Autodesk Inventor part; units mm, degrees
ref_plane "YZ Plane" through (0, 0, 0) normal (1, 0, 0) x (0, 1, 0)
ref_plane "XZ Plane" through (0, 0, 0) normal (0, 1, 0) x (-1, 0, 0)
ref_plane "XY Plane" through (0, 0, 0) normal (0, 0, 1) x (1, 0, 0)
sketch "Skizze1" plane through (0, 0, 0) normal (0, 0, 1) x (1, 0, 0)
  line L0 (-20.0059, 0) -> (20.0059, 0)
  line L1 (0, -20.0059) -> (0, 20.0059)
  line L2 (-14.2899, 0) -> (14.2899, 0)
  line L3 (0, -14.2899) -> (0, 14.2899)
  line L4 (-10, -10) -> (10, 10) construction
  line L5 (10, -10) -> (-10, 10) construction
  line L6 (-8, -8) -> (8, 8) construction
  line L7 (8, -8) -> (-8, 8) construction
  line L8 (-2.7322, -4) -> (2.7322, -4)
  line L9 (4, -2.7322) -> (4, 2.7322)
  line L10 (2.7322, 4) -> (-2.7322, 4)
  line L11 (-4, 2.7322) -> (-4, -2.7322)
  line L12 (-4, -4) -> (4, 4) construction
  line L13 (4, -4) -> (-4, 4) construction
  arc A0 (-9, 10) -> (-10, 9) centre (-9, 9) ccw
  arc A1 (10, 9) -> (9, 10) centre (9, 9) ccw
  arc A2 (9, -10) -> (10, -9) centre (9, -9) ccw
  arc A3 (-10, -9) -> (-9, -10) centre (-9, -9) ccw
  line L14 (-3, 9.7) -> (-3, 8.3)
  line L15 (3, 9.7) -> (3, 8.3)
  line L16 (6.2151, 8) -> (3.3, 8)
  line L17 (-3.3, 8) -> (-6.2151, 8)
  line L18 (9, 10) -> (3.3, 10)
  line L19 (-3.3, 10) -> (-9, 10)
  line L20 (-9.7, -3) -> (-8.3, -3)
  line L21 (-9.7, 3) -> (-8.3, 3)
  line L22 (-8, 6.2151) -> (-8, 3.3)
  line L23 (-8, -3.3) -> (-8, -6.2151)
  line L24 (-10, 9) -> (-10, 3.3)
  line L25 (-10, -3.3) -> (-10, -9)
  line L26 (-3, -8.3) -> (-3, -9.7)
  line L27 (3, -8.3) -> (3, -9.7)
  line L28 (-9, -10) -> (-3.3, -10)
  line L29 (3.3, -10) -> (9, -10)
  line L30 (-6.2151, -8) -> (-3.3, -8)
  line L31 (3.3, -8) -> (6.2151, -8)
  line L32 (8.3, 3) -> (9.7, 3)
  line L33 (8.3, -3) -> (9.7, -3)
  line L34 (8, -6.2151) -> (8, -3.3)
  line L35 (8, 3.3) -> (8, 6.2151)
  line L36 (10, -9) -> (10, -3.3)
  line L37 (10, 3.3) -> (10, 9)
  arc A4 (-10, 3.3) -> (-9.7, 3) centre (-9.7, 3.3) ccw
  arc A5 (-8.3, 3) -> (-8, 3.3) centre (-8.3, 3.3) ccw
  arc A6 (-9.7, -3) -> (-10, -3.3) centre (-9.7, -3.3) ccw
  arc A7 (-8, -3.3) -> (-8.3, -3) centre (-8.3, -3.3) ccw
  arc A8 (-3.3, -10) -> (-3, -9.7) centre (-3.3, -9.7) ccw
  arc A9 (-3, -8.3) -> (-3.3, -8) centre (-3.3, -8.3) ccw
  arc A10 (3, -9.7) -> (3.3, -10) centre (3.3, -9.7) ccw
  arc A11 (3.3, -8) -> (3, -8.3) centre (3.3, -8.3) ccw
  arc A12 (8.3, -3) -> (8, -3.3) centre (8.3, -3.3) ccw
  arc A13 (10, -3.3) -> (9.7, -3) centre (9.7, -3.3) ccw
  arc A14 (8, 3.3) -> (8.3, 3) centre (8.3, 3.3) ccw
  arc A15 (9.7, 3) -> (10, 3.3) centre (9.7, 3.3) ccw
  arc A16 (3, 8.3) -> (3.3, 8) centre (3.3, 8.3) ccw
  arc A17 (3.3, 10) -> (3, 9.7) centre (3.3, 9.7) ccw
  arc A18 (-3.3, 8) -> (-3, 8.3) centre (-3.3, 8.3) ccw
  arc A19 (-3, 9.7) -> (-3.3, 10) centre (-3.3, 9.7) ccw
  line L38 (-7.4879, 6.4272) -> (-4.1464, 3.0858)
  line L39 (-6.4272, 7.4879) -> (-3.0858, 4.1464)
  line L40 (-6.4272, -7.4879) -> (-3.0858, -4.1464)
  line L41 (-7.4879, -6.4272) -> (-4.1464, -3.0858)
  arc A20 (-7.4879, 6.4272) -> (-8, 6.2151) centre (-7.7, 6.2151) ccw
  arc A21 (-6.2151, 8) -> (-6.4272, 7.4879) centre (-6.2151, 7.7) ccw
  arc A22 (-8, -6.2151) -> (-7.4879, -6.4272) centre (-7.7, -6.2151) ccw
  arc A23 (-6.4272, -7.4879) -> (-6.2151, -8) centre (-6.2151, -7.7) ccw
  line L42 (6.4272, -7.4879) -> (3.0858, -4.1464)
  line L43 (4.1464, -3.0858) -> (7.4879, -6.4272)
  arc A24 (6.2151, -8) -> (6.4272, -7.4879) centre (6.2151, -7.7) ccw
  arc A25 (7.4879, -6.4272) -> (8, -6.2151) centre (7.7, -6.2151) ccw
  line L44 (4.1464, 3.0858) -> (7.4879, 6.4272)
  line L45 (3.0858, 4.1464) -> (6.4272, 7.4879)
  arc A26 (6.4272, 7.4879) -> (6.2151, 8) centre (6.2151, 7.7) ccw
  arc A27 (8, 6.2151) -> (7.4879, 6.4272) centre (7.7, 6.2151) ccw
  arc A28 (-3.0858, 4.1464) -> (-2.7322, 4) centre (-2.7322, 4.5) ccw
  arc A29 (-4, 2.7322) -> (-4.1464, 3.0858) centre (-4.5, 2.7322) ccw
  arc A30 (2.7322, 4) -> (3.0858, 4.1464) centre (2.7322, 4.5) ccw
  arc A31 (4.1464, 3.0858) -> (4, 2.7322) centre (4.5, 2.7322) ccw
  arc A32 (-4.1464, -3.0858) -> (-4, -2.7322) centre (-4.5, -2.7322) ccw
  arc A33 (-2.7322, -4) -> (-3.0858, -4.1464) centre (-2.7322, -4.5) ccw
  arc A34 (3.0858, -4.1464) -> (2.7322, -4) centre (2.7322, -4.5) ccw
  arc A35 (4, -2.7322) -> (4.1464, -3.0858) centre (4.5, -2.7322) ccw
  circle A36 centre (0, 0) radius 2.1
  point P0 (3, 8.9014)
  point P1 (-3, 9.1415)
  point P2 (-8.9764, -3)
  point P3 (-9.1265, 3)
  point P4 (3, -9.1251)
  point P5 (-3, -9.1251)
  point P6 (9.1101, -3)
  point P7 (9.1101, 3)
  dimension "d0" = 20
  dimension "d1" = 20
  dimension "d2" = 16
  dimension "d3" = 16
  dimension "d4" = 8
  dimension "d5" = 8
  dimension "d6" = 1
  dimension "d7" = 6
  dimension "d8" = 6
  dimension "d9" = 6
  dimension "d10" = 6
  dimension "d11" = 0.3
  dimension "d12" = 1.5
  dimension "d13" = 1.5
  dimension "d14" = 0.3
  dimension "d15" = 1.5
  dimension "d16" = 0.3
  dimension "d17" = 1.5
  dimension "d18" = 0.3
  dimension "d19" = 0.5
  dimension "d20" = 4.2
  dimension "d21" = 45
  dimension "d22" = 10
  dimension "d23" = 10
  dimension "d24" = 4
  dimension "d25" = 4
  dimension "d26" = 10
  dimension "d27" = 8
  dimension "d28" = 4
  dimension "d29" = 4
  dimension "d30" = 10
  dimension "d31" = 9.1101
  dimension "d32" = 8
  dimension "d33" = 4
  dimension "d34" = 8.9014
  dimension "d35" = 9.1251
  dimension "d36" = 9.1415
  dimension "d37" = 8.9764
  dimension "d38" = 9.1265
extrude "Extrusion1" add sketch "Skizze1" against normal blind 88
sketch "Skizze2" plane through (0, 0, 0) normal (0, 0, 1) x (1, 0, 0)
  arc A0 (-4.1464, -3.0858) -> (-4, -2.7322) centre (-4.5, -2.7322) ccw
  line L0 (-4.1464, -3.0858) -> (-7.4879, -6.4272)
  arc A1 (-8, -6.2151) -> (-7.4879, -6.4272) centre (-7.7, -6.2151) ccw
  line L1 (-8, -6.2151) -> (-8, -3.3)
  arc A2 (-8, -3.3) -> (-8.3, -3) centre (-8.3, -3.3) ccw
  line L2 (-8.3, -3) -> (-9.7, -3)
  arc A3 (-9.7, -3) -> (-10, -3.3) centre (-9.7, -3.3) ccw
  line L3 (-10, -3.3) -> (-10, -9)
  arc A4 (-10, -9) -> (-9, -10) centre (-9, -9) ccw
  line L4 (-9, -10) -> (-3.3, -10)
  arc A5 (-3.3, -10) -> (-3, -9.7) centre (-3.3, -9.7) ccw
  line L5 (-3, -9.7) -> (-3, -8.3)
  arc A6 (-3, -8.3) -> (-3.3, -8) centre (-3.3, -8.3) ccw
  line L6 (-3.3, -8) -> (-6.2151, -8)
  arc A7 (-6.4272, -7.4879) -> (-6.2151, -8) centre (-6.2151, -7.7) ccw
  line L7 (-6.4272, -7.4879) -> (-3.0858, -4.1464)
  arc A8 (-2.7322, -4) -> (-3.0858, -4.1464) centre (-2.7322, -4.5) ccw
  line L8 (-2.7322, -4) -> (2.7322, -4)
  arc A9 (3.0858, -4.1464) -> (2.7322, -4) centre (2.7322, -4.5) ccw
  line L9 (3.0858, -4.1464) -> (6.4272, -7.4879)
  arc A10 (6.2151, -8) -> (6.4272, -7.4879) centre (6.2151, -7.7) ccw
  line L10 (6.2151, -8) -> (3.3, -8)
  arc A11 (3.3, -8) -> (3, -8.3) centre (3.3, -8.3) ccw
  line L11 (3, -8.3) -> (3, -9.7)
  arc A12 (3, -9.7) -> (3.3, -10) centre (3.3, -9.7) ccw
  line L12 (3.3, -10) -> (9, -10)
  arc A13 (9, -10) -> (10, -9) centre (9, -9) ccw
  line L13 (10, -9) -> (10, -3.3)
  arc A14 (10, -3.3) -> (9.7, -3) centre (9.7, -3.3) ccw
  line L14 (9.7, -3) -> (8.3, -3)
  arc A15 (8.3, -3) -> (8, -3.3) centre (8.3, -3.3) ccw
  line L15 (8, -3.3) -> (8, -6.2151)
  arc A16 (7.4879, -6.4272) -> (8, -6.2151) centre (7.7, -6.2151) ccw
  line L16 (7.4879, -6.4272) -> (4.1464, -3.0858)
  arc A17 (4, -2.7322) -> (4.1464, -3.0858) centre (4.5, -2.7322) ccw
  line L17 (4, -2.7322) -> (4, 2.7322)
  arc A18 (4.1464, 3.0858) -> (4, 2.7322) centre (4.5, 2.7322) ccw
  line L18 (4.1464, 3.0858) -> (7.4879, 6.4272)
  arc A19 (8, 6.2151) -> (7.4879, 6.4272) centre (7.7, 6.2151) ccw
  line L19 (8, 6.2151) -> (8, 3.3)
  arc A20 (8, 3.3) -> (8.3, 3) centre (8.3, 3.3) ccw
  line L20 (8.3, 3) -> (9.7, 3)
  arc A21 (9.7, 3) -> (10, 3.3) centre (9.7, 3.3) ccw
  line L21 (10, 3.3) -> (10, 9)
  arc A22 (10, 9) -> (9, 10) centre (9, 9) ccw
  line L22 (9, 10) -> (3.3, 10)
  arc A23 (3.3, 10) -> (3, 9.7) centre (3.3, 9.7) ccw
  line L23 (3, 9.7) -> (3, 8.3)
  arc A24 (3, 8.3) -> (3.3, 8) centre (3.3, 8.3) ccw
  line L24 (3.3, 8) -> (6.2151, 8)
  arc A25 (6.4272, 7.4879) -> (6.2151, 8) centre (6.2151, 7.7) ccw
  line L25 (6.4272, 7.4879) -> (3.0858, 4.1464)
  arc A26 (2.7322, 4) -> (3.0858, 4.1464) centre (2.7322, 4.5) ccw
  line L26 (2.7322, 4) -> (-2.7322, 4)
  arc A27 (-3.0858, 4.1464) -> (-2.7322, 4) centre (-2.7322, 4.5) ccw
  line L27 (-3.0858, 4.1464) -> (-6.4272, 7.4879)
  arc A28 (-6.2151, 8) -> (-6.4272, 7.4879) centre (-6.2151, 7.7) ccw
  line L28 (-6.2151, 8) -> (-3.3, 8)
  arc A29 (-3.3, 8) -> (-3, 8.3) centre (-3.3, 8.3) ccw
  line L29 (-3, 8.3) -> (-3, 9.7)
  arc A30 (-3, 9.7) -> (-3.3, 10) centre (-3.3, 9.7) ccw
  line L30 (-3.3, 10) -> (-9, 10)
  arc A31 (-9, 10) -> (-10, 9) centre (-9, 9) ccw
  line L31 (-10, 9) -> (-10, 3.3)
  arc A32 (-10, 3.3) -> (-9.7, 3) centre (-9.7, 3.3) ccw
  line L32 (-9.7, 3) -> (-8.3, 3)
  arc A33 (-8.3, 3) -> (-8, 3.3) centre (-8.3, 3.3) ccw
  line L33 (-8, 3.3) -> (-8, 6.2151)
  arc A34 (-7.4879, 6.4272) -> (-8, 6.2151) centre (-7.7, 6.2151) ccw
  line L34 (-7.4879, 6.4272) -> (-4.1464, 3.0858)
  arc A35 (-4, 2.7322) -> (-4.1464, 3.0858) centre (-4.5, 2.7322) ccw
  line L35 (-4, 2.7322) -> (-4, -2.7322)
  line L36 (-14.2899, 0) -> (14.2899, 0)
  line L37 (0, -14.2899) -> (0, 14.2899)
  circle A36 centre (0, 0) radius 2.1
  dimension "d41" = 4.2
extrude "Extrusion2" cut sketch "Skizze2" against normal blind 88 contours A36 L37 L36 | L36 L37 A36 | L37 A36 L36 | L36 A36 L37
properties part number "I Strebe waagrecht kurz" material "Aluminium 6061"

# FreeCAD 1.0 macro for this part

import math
import FreeCAD as App
import Part
import Sketcher

V = App.Vector
Q = App.Units.Quantity

doc = App.newDocument("Part")
body = doc.addObject("PartDesign::Body", "Body")

sketch1 = doc.addObject("Sketcher::SketchObject", "Sketch")
body.addObject(sketch1)
sketch1.AttachmentSupport = (doc.XY_Plane, [""])
sketch1.MapMode = "FlatFace"
sketch1.addGeometry([
    Part.LineSegment(V(-4, 2.73, 0), V(-4, -2.73, 0)),
    Part.ArcOfCircle(Part.Circle(V(-4.5, -2.73, 0), V(0, 0, 1), 0.5), math.radians(-45), math.radians(0)),
    Part.LineSegment(V(-4.15, -3.09, 0), V(-7.49, -6.43, 0)),
    Part.ArcOfCircle(Part.Circle(V(-7.7, -6.22, 0), V(0, 0, 1), 0.3), math.radians(180), math.radians(315)),
    Part.LineSegment(V(-8, -6.22, 0), V(-8, -3.3, 0)),
    Part.ArcOfCircle(Part.Circle(V(-8.3, -3.3, 0), V(0, 0, 1), 0.3), math.radians(0), math.radians(90)),
    Part.LineSegment(V(-8.3, -3, 0), V(-9.7, -3, 0)),
    Part.ArcOfCircle(Part.Circle(V(-9.7, -3.3, 0), V(0, 0, 1), 0.3), math.radians(90), math.radians(180)),
    Part.LineSegment(V(-10, -3.3, 0), V(-10, -9, 0)),
    Part.ArcOfCircle(Part.Circle(V(-9, -9, 0), V(0, 0, 1), 1), math.radians(180), math.radians(270)),
    Part.LineSegment(V(-9, -10, 0), V(-3.3, -10, 0)),
    Part.ArcOfCircle(Part.Circle(V(-3.3, -9.7, 0), V(0, 0, 1), 0.3), math.radians(-90), math.radians(0)),
    Part.LineSegment(V(-3, -9.7, 0), V(-3, -8.3, 0)),
    Part.ArcOfCircle(Part.Circle(V(-3.3, -8.3, 0), V(0, 0, 1), 0.3), math.radians(0), math.radians(90)),
    Part.LineSegment(V(-3.3, -8, 0), V(-6.22, -8, 0)),
    Part.ArcOfCircle(Part.Circle(V(-6.22, -7.7, 0), V(0, 0, 1), 0.3), math.radians(135), math.radians(270)),
    Part.LineSegment(V(-6.43, -7.49, 0), V(-3.09, -4.15, 0)),
    Part.ArcOfCircle(Part.Circle(V(-2.73, -4.5, 0), V(0, 0, 1), 0.5), math.radians(90), math.radians(135)),
    Part.LineSegment(V(-2.73, -4, 0), V(2.73, -4, 0)),
    Part.ArcOfCircle(Part.Circle(V(2.73, -4.5, 0), V(0, 0, 1), 0.5), math.radians(45), math.radians(90)),
    Part.LineSegment(V(3.09, -4.15, 0), V(6.43, -7.49, 0)),
    Part.ArcOfCircle(Part.Circle(V(6.22, -7.7, 0), V(0, 0, 1), 0.3), math.radians(-90), math.radians(45)),
    Part.LineSegment(V(6.22, -8, 0), V(3.3, -8, 0)),
    Part.ArcOfCircle(Part.Circle(V(3.3, -8.3, 0), V(0, 0, 1), 0.3), math.radians(90), math.radians(180)),
    Part.LineSegment(V(3, -8.3, 0), V(3, -9.7, 0)),
    Part.ArcOfCircle(Part.Circle(V(3.3, -9.7, 0), V(0, 0, 1), 0.3), math.radians(180), math.radians(270)),
    Part.LineSegment(V(3.3, -10, 0), V(9, -10, 0)),
    Part.ArcOfCircle(Part.Circle(V(9, -9, 0), V(0, 0, 1), 1), math.radians(-90), math.radians(0)),
    Part.LineSegment(V(10, -9, 0), V(10, -3.3, 0)),
    Part.ArcOfCircle(Part.Circle(V(9.7, -3.3, 0), V(0, 0, 1), 0.3), math.radians(0), math.radians(90)),
    Part.LineSegment(V(9.7, -3, 0), V(8.3, -3, 0)),
    Part.ArcOfCircle(Part.Circle(V(8.3, -3.3, 0), V(0, 0, 1), 0.3), math.radians(90), math.radians(180)),
    Part.LineSegment(V(8, -3.3, 0), V(8, -6.22, 0)),
    Part.ArcOfCircle(Part.Circle(V(7.7, -6.22, 0), V(0, 0, 1), 0.3), math.radians(-135), math.radians(0)),
    Part.LineSegment(V(7.49, -6.43, 0), V(4.15, -3.09, 0)),
    Part.ArcOfCircle(Part.Circle(V(4.5, -2.73, 0), V(0, 0, 1), 0.5), math.radians(180), math.radians(225)),
    Part.LineSegment(V(4, -2.73, 0), V(4, 2.73, 0)),
    Part.ArcOfCircle(Part.Circle(V(4.5, 2.73, 0), V(0, 0, 1), 0.5), math.radians(135), math.radians(180)),
    Part.LineSegment(V(4.15, 3.09, 0), V(7.49, 6.43, 0)),
    Part.ArcOfCircle(Part.Circle(V(7.7, 6.22, 0), V(0, 0, 1), 0.3), math.radians(0), math.radians(135)),
    Part.LineSegment(V(8, 6.22, 0), V(8, 3.3, 0)),
    Part.ArcOfCircle(Part.Circle(V(8.3, 3.3, 0), V(0, 0, 1), 0.3), math.radians(180), math.radians(270)),
    Part.LineSegment(V(8.3, 3, 0), V(9.7, 3, 0)),
    Part.ArcOfCircle(Part.Circle(V(9.7, 3.3, 0), V(0, 0, 1), 0.3), math.radians(-90), math.radians(0)),
    Part.LineSegment(V(10, 3.3, 0), V(10, 9, 0)),
    Part.ArcOfCircle(Part.Circle(V(9, 9, 0), V(0, 0, 1), 1), math.radians(0), math.radians(90)),
    Part.LineSegment(V(9, 10, 0), V(3.3, 10, 0)),
    Part.ArcOfCircle(Part.Circle(V(3.3, 9.7, 0), V(0, 0, 1), 0.3), math.radians(90), math.radians(180)),
    Part.LineSegment(V(3, 9.7, 0), V(3, 8.3, 0)),
    Part.ArcOfCircle(Part.Circle(V(3.3, 8.3, 0), V(0, 0, 1), 0.3), math.radians(180), math.radians(270)),
    Part.LineSegment(V(3.3, 8, 0), V(6.22, 8, 0)),
    Part.ArcOfCircle(Part.Circle(V(6.22, 7.7, 0), V(0, 0, 1), 0.3), math.radians(-45), math.radians(90)),
    Part.LineSegment(V(6.43, 7.49, 0), V(3.09, 4.15, 0)),
    Part.ArcOfCircle(Part.Circle(V(2.73, 4.5, 0), V(0, 0, 1), 0.5), math.radians(-90), math.radians(-45)),
    Part.LineSegment(V(2.73, 4, 0), V(-2.73, 4, 0)),
    Part.ArcOfCircle(Part.Circle(V(-2.73, 4.5, 0), V(0, 0, 1), 0.5), math.radians(-135), math.radians(-90)),
    Part.LineSegment(V(-3.09, 4.15, 0), V(-6.43, 7.49, 0)),
    Part.ArcOfCircle(Part.Circle(V(-6.22, 7.7, 0), V(0, 0, 1), 0.3), math.radians(90), math.radians(225)),
    Part.LineSegment(V(-6.22, 8, 0), V(-3.3, 8, 0)),
    Part.ArcOfCircle(Part.Circle(V(-3.3, 8.3, 0), V(0, 0, 1), 0.3), math.radians(-90), math.radians(0)),
    Part.LineSegment(V(-3, 8.3, 0), V(-3, 9.7, 0)),
    Part.ArcOfCircle(Part.Circle(V(-3.3, 9.7, 0), V(0, 0, 1), 0.3), math.radians(0), math.radians(90)),
    Part.LineSegment(V(-3.3, 10, 0), V(-9, 10, 0)),
    Part.ArcOfCircle(Part.Circle(V(-9, 9, 0), V(0, 0, 1), 1), math.radians(90), math.radians(180)),
    Part.LineSegment(V(-10, 9, 0), V(-10, 3.3, 0)),
    Part.ArcOfCircle(Part.Circle(V(-9.7, 3.3, 0), V(0, 0, 1), 0.3), math.radians(180), math.radians(270)),
    Part.LineSegment(V(-9.7, 3, 0), V(-8.3, 3, 0)),
    Part.ArcOfCircle(Part.Circle(V(-8.3, 3.3, 0), V(0, 0, 1), 0.3), math.radians(-90), math.radians(0)),
    Part.LineSegment(V(-8, 3.3, 0), V(-8, 6.22, 0)),
    Part.ArcOfCircle(Part.Circle(V(-7.7, 6.22, 0), V(0, 0, 1), 0.3), math.radians(45), math.radians(180)),
    Part.LineSegment(V(-7.49, 6.43, 0), V(-4.15, 3.09, 0)),
    Part.ArcOfCircle(Part.Circle(V(-4.5, 2.73, 0), V(0, 0, 1), 0.5), math.radians(0), math.radians(45)),
], False)
sketch1.addConstraint([
    Sketcher.Constraint("Tangent", 0, 2, 1, 2),
    Sketcher.Constraint("Tangent", 1, 1, 2, 1),
    Sketcher.Constraint("Tangent", 2, 2, 3, 2),
    Sketcher.Constraint("Tangent", 3, 1, 4, 1),
    Sketcher.Constraint("Tangent", 4, 2, 5, 1),
    Sketcher.Constraint("Tangent", 5, 2, 6, 1),
    Sketcher.Constraint("Tangent", 6, 2, 7, 1),
    Sketcher.Constraint("Tangent", 7, 2, 8, 1),
    Sketcher.Constraint("Tangent", 8, 2, 9, 1),
    Sketcher.Constraint("Tangent", 9, 2, 10, 1),
    Sketcher.Constraint("Tangent", 10, 2, 11, 1),
    Sketcher.Constraint("Tangent", 11, 2, 12, 1),
    Sketcher.Constraint("Tangent", 12, 2, 13, 1),
    Sketcher.Constraint("Tangent", 13, 2, 14, 1),
    Sketcher.Constraint("Tangent", 14, 2, 15, 2),
    Sketcher.Constraint("Tangent", 15, 1, 16, 1),
    Sketcher.Constraint("Tangent", 16, 2, 17, 2),
    Sketcher.Constraint("Tangent", 17, 1, 18, 1),
    Sketcher.Constraint("Tangent", 18, 2, 19, 2),
    Sketcher.Constraint("Tangent", 19, 1, 20, 1),
    Sketcher.Constraint("Tangent", 20, 2, 21, 2),
    Sketcher.Constraint("Tangent", 21, 1, 22, 1),
    Sketcher.Constraint("Tangent", 22, 2, 23, 1),
    Sketcher.Constraint("Tangent", 23, 2, 24, 1),
    Sketcher.Constraint("Tangent", 24, 2, 25, 1),
    Sketcher.Constraint("Tangent", 25, 2, 26, 1),
    Sketcher.Constraint("Tangent", 26, 2, 27, 1),
    Sketcher.Constraint("Tangent", 27, 2, 28, 1),
    Sketcher.Constraint("Tangent", 28, 2, 29, 1),
    Sketcher.Constraint("Tangent", 29, 2, 30, 1),
    Sketcher.Constraint("Tangent", 30, 2, 31, 1),
    Sketcher.Constraint("Tangent", 31, 2, 32, 1),
    Sketcher.Constraint("Tangent", 32, 2, 33, 2),
    Sketcher.Constraint("Tangent", 33, 1, 34, 1),
    Sketcher.Constraint("Tangent", 34, 2, 35, 2),
    Sketcher.Constraint("Tangent", 35, 1, 36, 1),
    Sketcher.Constraint("Tangent", 36, 2, 37, 2),
    Sketcher.Constraint("Tangent", 37, 1, 38, 1),
    Sketcher.Constraint("Tangent", 38, 2, 39, 2),
    Sketcher.Constraint("Tangent", 39, 1, 40, 1),
    Sketcher.Constraint("Tangent", 40, 2, 41, 1),
    Sketcher.Constraint("Tangent", 41, 2, 42, 1),
    Sketcher.Constraint("Tangent", 42, 2, 43, 1),
    Sketcher.Constraint("Tangent", 43, 2, 44, 1),
    Sketcher.Constraint("Tangent", 44, 2, 45, 1),
    Sketcher.Constraint("Tangent", 45, 2, 46, 1),
    Sketcher.Constraint("Tangent", 46, 2, 47, 1),
    Sketcher.Constraint("Tangent", 47, 2, 48, 1),
    Sketcher.Constraint("Tangent", 48, 2, 49, 1),
    Sketcher.Constraint("Tangent", 49, 2, 50, 1),
    Sketcher.Constraint("Tangent", 50, 2, 51, 2),
    Sketcher.Constraint("Tangent", 51, 1, 52, 1),
    Sketcher.Constraint("Tangent", 52, 2, 53, 2),
    Sketcher.Constraint("Tangent", 53, 1, 54, 1),
    Sketcher.Constraint("Tangent", 54, 2, 55, 2),
    Sketcher.Constraint("Tangent", 55, 1, 56, 1),
    Sketcher.Constraint("Tangent", 56, 2, 57, 2),
    Sketcher.Constraint("Tangent", 57, 1, 58, 1),
    Sketcher.Constraint("Tangent", 58, 2, 59, 1),
    Sketcher.Constraint("Tangent", 59, 2, 60, 1),
    Sketcher.Constraint("Tangent", 60, 2, 61, 1),
    Sketcher.Constraint("Tangent", 61, 2, 62, 1),
    Sketcher.Constraint("Tangent", 62, 2, 63, 1),
    Sketcher.Constraint("Tangent", 63, 2, 64, 1),
    Sketcher.Constraint("Tangent", 64, 2, 65, 1),
    Sketcher.Constraint("Tangent", 65, 2, 66, 1),
    Sketcher.Constraint("Tangent", 66, 2, 67, 1),
    Sketcher.Constraint("Tangent", 67, 2, 68, 1),
    Sketcher.Constraint("Tangent", 68, 2, 69, 2),
    Sketcher.Constraint("Tangent", 69, 1, 70, 1),
    Sketcher.Constraint("Tangent", 70, 2, 71, 2),
    Sketcher.Constraint("Tangent", 71, 1, 0, 1),
    Sketcher.Constraint("Vertical", 0),
    Sketcher.Constraint("Vertical", 4),
    Sketcher.Constraint("Horizontal", 6),
    Sketcher.Constraint("Vertical", 8),
    Sketcher.Constraint("Horizontal", 10),
    Sketcher.Constraint("Vertical", 12),
    Sketcher.Constraint("Horizontal", 14),
    Sketcher.Constraint("Horizontal", 18),
    Sketcher.Constraint("Horizontal", 22),
    Sketcher.Constraint("Vertical", 24),
    Sketcher.Constraint("Horizontal", 26),
    Sketcher.Constraint("Vertical", 28),
    Sketcher.Constraint("Horizontal", 30),
    Sketcher.Constraint("Vertical", 32),
    Sketcher.Constraint("Vertical", 36),
    Sketcher.Constraint("Vertical", 40),
    Sketcher.Constraint("Horizontal", 42),
    Sketcher.Constraint("Vertical", 44),
    Sketcher.Constraint("Horizontal", 46),
    Sketcher.Constraint("Vertical", 48),
    Sketcher.Constraint("Horizontal", 50),
    Sketcher.Constraint("Horizontal", 54),
    Sketcher.Constraint("Horizontal", 58),
    Sketcher.Constraint("Vertical", 60),
    Sketcher.Constraint("Horizontal", 62),
    Sketcher.Constraint("Vertical", 64),
    Sketcher.Constraint("Horizontal", 66),
    Sketcher.Constraint("Vertical", 68),
    Sketcher.Constraint("Equal", 3, 5),
    Sketcher.Constraint("Equal", 5, 7),
    Sketcher.Constraint("Equal", 7, 11),
    Sketcher.Constraint("Equal", 11, 13),
    Sketcher.Constraint("Equal", 13, 15),
    Sketcher.Constraint("Equal", 1, 17),
    Sketcher.Constraint("Equal", 17, 19),
    Sketcher.Constraint("Equal", 15, 21),
    Sketcher.Constraint("Equal", 21, 23),
    Sketcher.Constraint("Equal", 23, 25),
    Sketcher.Constraint("Equal", 9, 27),
    Sketcher.Constraint("Equal", 25, 29),
    Sketcher.Constraint("Equal", 29, 31),
    Sketcher.Constraint("Equal", 31, 33),
    Sketcher.Constraint("Equal", 19, 35),
    Sketcher.Constraint("Equal", 35, 37),
    Sketcher.Constraint("Equal", 33, 39),
    Sketcher.Constraint("Equal", 39, 41),
    Sketcher.Constraint("Equal", 41, 43),
    Sketcher.Constraint("Equal", 27, 45),
    Sketcher.Constraint("Equal", 43, 47),
    Sketcher.Constraint("Equal", 47, 49),
    Sketcher.Constraint("Equal", 49, 51),
    Sketcher.Constraint("Equal", 37, 53),
    Sketcher.Constraint("Equal", 53, 55),
    Sketcher.Constraint("Equal", 51, 57),
    Sketcher.Constraint("Equal", 57, 59),
    Sketcher.Constraint("Equal", 59, 61),
    Sketcher.Constraint("Equal", 45, 63),
    Sketcher.Constraint("Equal", 61, 65),
    Sketcher.Constraint("Equal", 65, 67),
    Sketcher.Constraint("Equal", 67, 69),
    Sketcher.Constraint("Equal", 55, 71),
    Sketcher.Constraint("Symmetric", 1, 3, 37, 3, -1, 1),
    Sketcher.Constraint("Symmetric", 3, 3, 39, 3, -1, 1),
    Sketcher.Constraint("Symmetric", 7, 3, 43, 3, -1, 1),
    Sketcher.Constraint("Symmetric", 11, 3, 47, 3, -1, 1),
    Sketcher.Constraint("Symmetric", 15, 3, 51, 3, -1, 1),
    Sketcher.Constraint("Symmetric", 17, 3, 53, 3, -1, 1),
    Sketcher.Constraint("Symmetric", 21, 3, 57, 3, -1, 1),
    Sketcher.Constraint("Symmetric", 25, 3, 61, 3, -1, 1),
    Sketcher.Constraint("Symmetric", 29, 3, 65, 3, -1, 1),
    Sketcher.Constraint("Symmetric", 33, 3, 69, 3, -1, 1),
    Sketcher.Constraint("Symmetric", 15, 3, 21, 3, -2),
    Sketcher.Constraint("Symmetric", 11, 3, 25, 3, -2),
    Sketcher.Constraint("Symmetric", 7, 3, 29, 3, -2),
    Sketcher.Constraint("Symmetric", 3, 3, 33, 3, -2),
    Sketcher.Constraint("Parallel", 2, 16),
    Sketcher.Constraint("Perpendicular", 16, 20),
    Sketcher.Constraint("Parallel", 20, 34),
    Sketcher.Constraint("Perpendicular", 52, 56),
    Sketcher.Constraint("Parallel", 56, 70),
    Sketcher.Constraint("Horizontal", 1, 3, 35, 3),
    Sketcher.Constraint("Equal", 54, 0),
    Sketcher.Constraint("Equal", 58, 4),
    Sketcher.Constraint("Equal", 62, 8),
    Sketcher.Constraint("Equal", 66, 12),
    Sketcher.Constraint("Equal", 2, 16),
    Sketcher.Constraint("Radius", 9, Q("1 mm")),
    Sketcher.Constraint("Radius", 1, Q("0.5 mm")),
    Sketcher.Constraint("Radius", 3, Q("0.3 mm")),
    Sketcher.Constraint("DistanceX", 0, 2, -1, 1, Q("4 mm")),
    Sketcher.Constraint("DistanceX", 3, 1, -1, 1, Q("8 mm")),
    Sketcher.Constraint("DistanceX", 7, 2, -1, 1, Q("10 mm")),
    Sketcher.Constraint("DistanceX", 10, 1, 10, 2, Q("5.7 mm")),
    Sketcher.Constraint("DistanceX", 14, 2, 14, 1, Q("2.915 mm")),
])
pad1 = doc.addObject("PartDesign::Pad", "Pad")
body.addObject(pad1)
pad1.Profile = sketch1
pad1.Length = 88
pad1.Reversed = True

sketch2 = doc.addObject("Sketcher::SketchObject", "Sketch001")
body.addObject(sketch2)
sketch2.AttachmentSupport = (doc.XY_Plane, [""])
sketch2.MapMode = "FlatFace"
sketch2.addGeometry(Part.Circle(V(0, 0, 0), V(0, 0, 1), 2.1), False)
sketch2.addConstraint([
    Sketcher.Constraint("Coincident", 0, 3, -1, 1),
    Sketcher.Constraint("Diameter", 0, Q("4.2 mm")),
])
pocket1 = doc.addObject("PartDesign::Pocket", "Pocket")
body.addObject(pocket1)
pocket1.Profile = sketch2
pocket1.Length = 88

doc.recompute()
